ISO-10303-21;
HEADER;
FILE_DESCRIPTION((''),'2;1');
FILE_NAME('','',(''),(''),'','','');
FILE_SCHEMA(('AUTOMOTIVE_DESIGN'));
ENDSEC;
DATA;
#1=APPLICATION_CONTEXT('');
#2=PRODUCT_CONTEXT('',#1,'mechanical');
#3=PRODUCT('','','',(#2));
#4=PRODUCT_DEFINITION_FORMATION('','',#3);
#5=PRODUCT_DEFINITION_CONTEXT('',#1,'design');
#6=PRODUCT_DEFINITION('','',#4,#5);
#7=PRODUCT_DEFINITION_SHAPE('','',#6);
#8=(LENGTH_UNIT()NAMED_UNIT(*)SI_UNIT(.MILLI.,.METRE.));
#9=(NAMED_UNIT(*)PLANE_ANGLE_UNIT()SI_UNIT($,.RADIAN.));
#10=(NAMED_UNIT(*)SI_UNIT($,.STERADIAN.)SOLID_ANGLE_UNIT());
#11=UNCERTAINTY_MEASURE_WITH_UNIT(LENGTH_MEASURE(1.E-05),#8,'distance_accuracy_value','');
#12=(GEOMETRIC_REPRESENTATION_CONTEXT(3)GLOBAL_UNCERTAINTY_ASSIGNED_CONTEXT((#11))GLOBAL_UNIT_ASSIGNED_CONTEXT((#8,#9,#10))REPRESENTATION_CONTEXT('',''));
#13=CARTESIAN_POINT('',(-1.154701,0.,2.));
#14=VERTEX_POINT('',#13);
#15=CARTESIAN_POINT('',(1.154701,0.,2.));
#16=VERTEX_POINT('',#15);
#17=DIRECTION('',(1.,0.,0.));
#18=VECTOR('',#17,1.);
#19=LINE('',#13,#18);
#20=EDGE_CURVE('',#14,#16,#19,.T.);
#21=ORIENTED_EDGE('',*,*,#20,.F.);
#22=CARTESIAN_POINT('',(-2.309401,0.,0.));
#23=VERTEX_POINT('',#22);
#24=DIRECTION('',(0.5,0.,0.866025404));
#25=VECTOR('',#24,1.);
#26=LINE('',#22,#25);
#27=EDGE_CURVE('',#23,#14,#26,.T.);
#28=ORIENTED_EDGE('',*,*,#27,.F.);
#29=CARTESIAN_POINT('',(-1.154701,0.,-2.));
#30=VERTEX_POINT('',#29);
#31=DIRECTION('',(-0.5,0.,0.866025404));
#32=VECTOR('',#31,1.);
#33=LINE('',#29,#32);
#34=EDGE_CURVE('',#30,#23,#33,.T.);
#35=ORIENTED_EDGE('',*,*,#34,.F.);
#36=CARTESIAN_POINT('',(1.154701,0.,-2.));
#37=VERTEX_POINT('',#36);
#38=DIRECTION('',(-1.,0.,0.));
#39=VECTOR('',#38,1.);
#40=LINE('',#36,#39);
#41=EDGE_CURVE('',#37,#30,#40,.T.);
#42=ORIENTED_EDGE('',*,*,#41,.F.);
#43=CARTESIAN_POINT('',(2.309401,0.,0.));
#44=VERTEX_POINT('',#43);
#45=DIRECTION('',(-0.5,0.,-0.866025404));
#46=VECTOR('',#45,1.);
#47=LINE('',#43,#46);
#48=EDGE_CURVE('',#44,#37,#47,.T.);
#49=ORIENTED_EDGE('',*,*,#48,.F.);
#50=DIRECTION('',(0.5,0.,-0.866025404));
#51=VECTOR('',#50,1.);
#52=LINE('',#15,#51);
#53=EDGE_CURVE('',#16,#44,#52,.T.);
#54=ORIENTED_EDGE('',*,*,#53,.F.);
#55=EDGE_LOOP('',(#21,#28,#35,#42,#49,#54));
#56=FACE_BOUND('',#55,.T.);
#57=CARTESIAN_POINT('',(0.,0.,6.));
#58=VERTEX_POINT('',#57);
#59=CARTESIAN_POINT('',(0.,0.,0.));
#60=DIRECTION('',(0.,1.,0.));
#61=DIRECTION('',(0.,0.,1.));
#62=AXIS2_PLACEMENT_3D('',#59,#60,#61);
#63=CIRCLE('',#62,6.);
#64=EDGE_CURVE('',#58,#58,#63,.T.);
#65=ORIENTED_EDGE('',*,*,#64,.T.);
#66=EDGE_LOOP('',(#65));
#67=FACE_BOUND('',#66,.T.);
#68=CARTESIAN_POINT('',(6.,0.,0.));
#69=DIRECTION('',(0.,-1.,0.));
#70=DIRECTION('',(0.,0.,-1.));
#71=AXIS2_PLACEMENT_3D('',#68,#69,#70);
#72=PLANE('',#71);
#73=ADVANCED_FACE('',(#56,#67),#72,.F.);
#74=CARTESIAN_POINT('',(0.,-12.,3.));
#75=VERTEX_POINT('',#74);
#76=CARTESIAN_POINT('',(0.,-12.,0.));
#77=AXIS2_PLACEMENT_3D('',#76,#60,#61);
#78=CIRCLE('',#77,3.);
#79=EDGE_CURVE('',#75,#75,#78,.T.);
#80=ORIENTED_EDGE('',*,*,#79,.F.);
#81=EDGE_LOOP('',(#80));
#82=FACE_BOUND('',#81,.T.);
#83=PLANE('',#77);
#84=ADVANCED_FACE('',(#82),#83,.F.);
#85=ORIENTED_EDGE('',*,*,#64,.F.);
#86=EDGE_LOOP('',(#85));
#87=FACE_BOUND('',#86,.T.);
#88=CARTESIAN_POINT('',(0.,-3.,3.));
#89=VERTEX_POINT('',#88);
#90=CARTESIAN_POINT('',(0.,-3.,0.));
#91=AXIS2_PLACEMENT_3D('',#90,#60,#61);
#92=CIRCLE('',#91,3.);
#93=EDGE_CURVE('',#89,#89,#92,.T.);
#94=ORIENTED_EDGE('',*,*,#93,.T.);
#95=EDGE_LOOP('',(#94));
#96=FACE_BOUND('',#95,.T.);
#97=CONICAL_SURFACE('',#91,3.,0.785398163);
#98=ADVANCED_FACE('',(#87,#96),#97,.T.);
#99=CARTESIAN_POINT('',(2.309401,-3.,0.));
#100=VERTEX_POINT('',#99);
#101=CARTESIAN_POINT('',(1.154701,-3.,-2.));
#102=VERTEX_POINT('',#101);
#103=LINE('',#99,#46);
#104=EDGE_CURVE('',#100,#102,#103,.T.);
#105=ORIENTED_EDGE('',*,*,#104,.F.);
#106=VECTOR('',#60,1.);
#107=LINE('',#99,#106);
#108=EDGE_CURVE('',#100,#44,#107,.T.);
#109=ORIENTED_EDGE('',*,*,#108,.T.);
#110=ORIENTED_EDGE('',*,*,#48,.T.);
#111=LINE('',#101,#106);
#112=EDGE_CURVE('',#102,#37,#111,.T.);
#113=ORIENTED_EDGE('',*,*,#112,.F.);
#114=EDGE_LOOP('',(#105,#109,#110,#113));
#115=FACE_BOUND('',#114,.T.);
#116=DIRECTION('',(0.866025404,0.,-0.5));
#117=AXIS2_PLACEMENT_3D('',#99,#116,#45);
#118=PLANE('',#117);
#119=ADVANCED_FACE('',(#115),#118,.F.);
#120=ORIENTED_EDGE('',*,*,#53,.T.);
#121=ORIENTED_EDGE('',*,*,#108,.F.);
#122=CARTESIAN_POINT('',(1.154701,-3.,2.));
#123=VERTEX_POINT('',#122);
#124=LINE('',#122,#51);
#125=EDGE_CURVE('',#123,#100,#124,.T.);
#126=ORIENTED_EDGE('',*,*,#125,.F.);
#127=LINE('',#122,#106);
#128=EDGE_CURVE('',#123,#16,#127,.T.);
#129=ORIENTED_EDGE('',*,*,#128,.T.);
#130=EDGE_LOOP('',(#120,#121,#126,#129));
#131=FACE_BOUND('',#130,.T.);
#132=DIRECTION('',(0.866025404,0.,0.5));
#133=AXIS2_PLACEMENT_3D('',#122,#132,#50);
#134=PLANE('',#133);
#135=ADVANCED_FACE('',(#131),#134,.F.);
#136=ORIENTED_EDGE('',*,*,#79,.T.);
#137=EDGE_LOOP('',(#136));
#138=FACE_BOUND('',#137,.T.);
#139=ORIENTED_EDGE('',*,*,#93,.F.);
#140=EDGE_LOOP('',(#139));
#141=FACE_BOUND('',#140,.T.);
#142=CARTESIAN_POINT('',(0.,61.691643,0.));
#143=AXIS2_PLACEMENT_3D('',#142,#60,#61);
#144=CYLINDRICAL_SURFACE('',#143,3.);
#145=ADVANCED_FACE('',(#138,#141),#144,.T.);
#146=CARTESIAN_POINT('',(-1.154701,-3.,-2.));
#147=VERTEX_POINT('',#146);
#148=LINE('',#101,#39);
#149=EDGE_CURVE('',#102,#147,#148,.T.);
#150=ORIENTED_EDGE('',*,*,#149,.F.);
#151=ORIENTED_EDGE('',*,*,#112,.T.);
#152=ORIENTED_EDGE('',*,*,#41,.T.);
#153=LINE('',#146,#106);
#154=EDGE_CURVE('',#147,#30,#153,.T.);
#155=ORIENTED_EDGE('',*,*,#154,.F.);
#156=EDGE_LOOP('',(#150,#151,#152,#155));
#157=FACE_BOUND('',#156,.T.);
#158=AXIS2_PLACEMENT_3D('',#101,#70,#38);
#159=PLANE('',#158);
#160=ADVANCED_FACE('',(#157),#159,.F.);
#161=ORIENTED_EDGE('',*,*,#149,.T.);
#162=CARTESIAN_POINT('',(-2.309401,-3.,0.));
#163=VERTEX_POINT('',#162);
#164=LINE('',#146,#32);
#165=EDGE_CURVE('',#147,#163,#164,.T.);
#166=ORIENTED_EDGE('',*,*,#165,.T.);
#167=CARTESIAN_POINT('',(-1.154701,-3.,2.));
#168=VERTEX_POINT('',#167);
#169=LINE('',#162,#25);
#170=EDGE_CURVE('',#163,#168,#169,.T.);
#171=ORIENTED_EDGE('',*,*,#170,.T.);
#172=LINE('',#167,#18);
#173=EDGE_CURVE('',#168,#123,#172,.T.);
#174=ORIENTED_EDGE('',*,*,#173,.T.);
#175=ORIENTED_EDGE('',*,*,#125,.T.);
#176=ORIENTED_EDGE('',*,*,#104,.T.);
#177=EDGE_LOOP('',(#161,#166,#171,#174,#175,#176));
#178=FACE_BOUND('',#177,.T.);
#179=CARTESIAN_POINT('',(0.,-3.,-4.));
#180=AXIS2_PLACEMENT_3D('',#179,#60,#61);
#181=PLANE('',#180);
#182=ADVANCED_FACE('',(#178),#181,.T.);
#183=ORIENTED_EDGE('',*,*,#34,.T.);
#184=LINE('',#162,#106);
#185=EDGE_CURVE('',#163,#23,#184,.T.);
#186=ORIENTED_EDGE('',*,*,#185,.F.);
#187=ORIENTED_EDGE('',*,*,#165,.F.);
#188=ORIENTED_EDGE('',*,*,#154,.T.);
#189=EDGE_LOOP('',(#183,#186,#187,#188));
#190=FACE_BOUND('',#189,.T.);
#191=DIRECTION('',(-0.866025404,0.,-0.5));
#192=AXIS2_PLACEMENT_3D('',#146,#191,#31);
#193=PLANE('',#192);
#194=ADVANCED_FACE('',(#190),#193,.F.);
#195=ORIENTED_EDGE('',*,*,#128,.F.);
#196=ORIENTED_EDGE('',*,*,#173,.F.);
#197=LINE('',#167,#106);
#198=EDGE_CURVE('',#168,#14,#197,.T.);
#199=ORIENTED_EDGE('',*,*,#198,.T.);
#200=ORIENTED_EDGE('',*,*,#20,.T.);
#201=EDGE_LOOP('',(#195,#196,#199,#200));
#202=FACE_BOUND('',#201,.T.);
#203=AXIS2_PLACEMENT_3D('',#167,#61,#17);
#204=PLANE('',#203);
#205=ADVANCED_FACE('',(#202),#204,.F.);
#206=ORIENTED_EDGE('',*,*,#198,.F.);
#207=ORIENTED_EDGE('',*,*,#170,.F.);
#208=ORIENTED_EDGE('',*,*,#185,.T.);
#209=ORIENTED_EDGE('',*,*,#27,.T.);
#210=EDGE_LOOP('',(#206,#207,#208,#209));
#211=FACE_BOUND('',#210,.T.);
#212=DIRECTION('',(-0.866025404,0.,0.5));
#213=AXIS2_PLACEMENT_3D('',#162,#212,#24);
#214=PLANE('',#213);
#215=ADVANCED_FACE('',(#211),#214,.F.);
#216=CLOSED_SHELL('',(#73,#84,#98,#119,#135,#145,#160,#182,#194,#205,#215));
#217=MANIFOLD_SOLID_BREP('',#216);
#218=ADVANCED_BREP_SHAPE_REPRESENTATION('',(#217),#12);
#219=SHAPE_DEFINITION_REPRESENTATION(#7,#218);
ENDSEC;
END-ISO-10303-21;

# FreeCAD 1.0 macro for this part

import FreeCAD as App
import Part
import Sketcher

V = App.Vector
Q = App.Units.Quantity


def add_polygon(sketch, points):
    """Adds a closed chain of lines whose ends are joined by coincident constraints."""
    first, n = sketch.GeometryCount, len(points)
    for a, b in zip(points, points[1:] + points[:1]):
        sketch.addGeometry(Part.LineSegment(App.Vector(*a, 0), App.Vector(*b, 0)), False)
    for i in range(n):
        sketch.addConstraint(Sketcher.Constraint("Coincident", first + i, 2, first + (i + 1) % n, 1))

doc = App.newDocument("Part")
params = doc.addObject("Spreadsheet::Sheet", "Params")
for row, (alias, value) in enumerate([
    ("sketch1_width", "3 mm"),
    ("sketch1_width2", "6 mm"),
    ("sketch1_height", "9 mm"),
    ("sketch1_height2", "12 mm"),
    ("revolution_angle", "360 deg"),
    ("pocket1_length", "3 mm"),
], start=1):
    params.set(f"A{row}", alias)
    params.set(f"B{row}", "=" + value)
    params.setAlias(f"B{row}", alias)

body = doc.addObject("PartDesign::Body", "Body")

sketch1 = body.newObject("Sketcher::SketchObject", "Sketch")
sketch1.AttachmentSupport = (doc.getObject("XY_Plane"), [""])
sketch1.MapMode = "FlatFace"
add_polygon(sketch1, [(0, -12), (3, -12), (3, -3), (6, 0), (0, 0)])
sketch1.addConstraint([
    Sketcher.Constraint("Horizontal", 0),
    Sketcher.Constraint("Vertical", 1),
    Sketcher.Constraint("Horizontal", 3),
    Sketcher.Constraint("Vertical", 4),
    Sketcher.Constraint("Coincident", 3, 2, -1, 1),
    Sketcher.Constraint("DistanceX", 0, 1, 0, 2, Q("3 mm")),
    Sketcher.Constraint("DistanceX", 3, 2, 3, 1, Q("6 mm")),
    Sketcher.Constraint("DistanceY", 1, 1, 1, 2, Q("9 mm")),
    Sketcher.Constraint("DistanceY", 4, 2, 4, 1, Q("12 mm")),
])
sketch1.setExpression("Constraints[10]", "Params.sketch1_width")
sketch1.setExpression("Constraints[11]", "Params.sketch1_width2")
sketch1.setExpression("Constraints[12]", "Params.sketch1_height")
sketch1.setExpression("Constraints[13]", "Params.sketch1_height2")
revolution = body.newObject("PartDesign::Revolution", "Revolution")
revolution.Profile = sketch1
revolution.ReferenceAxis = (sketch1, ["V_Axis"])
revolution.setExpression("Angle", "Params.revolution_angle")

sketch2 = body.newObject("Sketcher::SketchObject", "Sketch001")
sketch2.AttachmentSupport = (doc.getObject("XZ_Plane"), [""])
sketch2.MapMode = "FlatFace"
add_polygon(sketch2, [(1.154701, -2), (-1.154701, -2), (-2.309401, 0), (-1.154701, 2), (1.154701, 2), (2.309401, 0)])
sketch2.addConstraint([
    Sketcher.Constraint("Horizontal", 0),
    Sketcher.Constraint("Horizontal", 3),
    Sketcher.Constraint("Symmetric", 0, 2, 3, 2, -1, 1),
    Sketcher.Constraint("Symmetric", 1, 2, 4, 2, -1, 1),
    Sketcher.Constraint("PointOnObject", 1, 2, -1),
    Sketcher.Constraint("Parallel", 2, 5),
    Sketcher.Constraint("Vertical", 0, 2, 2, 2),
    Sketcher.Constraint("Angle", 1, Q("120 deg")),
    Sketcher.Constraint("DistanceY", 0, 2, -1, 1, Q("2 mm")),
    Sketcher.Constraint("DistanceX", 0, 2, 0, 1, Q("2.309401 mm")),
])
pocket1 = body.newObject("PartDesign::Pocket", "Pocket")
pocket1.Profile = sketch2
pocket1.setExpression("Length", "Params.pocket1_length")
pocket1.Reversed = True

doc.recompute()
